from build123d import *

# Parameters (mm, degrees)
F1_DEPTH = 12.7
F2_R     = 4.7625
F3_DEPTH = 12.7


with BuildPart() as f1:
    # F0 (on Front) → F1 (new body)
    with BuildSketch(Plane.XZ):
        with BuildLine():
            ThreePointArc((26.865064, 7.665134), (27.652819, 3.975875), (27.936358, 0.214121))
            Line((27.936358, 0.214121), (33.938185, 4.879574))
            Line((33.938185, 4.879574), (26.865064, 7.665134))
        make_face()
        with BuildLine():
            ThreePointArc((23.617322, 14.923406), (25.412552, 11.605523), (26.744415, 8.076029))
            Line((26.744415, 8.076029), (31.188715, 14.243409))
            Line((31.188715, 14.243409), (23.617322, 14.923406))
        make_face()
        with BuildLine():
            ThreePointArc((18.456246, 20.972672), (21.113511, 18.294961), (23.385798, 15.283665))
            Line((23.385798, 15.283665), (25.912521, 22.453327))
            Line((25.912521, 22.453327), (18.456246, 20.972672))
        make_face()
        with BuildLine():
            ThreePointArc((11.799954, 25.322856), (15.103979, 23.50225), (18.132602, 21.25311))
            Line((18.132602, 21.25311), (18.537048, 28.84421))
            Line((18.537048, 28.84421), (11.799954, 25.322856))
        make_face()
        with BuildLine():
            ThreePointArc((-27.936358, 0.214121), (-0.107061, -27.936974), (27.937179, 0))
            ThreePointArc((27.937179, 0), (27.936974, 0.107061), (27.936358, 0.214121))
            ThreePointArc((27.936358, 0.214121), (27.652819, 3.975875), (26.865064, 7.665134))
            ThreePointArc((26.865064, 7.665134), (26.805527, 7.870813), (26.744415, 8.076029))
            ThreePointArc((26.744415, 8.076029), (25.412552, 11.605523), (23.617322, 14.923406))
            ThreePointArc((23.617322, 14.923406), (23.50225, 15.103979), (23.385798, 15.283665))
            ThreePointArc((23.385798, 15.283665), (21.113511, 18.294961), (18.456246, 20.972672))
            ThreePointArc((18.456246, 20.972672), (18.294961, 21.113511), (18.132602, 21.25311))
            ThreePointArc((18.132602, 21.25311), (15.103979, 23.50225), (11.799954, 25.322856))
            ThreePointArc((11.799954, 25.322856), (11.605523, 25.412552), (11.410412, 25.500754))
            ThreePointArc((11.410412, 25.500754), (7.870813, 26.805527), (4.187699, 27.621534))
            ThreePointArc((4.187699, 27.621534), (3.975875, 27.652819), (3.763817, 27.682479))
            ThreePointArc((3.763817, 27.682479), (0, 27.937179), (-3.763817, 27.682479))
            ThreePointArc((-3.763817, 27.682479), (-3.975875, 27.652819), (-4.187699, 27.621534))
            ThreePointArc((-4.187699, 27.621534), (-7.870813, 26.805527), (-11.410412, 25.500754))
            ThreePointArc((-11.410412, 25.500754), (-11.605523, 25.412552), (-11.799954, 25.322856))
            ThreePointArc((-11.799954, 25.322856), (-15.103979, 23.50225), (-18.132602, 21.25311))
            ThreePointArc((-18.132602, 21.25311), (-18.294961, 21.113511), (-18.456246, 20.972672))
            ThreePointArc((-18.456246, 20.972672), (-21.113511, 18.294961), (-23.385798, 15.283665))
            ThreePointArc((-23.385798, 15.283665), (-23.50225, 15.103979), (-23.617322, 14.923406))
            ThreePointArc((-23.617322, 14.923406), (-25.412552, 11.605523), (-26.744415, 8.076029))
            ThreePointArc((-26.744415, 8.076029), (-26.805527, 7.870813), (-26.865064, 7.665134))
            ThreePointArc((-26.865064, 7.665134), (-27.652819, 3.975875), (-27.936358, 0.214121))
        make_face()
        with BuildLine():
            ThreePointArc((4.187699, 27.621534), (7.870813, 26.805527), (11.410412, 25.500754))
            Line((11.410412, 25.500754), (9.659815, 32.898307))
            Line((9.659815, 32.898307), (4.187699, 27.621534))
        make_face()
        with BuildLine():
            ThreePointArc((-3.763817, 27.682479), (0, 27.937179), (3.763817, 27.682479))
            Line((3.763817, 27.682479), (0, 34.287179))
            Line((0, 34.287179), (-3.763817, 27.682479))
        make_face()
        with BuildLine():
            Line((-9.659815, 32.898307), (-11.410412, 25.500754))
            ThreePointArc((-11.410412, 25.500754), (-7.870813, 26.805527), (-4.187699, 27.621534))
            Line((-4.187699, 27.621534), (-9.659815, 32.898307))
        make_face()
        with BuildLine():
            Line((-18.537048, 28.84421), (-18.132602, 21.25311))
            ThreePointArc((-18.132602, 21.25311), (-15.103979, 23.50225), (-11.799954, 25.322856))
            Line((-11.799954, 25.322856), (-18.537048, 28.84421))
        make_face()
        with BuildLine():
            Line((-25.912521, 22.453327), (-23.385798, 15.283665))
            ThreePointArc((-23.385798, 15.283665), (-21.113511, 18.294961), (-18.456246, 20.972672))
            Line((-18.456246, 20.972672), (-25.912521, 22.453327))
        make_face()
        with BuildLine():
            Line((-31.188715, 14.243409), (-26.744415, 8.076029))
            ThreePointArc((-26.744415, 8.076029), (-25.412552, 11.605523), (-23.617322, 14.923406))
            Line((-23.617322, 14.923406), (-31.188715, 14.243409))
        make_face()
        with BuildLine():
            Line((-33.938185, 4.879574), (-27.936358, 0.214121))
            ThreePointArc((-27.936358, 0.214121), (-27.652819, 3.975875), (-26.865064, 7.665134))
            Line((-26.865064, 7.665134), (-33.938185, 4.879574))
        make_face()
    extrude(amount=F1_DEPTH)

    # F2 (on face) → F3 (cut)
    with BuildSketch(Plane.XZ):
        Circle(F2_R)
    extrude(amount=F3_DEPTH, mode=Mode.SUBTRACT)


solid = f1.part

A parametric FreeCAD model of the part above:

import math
import FreeCAD as App
import Part
import Sketcher
from FreeCAD import Vector
Q = App.Units.Quantity

doc = App.newDocument("Part")
body = doc.addObject("PartDesign::Body", "Body")

sketch1 = body.newObject("Sketcher::SketchObject", "Sketch")
sketch1.AttachmentSupport = (doc.getObject("XZ_Plane"), [""])
sketch1.MapMode = "FlatFace"
sketch1.addGeometry(Part.LineSegment(Vector(27.936358, 0.214121, 0), Vector(33.938185, 4.879574, 0)), False)
sketch1.addGeometry(Part.LineSegment(Vector(33.938185, 4.879574, 0), Vector(26.865064, 7.665134, 0)), False)
sketch1.addGeometry(Part.ArcOfCircle(Part.Circle(Vector(0.008462, 0.002527, 0), Vector(0, 0, 1), 27.928348), math.radians(15.924273), math.radians(16.802831)), False)
sketch1.addGeometry(Part.LineSegment(Vector(26.744415, 8.076029, 0), Vector(31.188715, 14.243409, 0)), False)
sketch1.addGeometry(Part.LineSegment(Vector(31.188715, 14.243409, 0), Vector(23.617322, 14.923406, 0)), False)
sketch1.addGeometry(Part.ArcOfCircle(Part.Circle(Vector(-0.009148, -0.005853, 0), Vector(0, 0, 1), 27.948039), math.radians(32.288259), math.radians(33.166196)), False)
sketch1.addGeometry(Part.LineSegment(Vector(23.385798, 15.283665, 0), Vector(25.912521, 22.453327, 0)), False)
sketch1.addGeometry(Part.LineSegment(Vector(25.912521, 22.453327, 0), Vector(18.456246, 20.972672, 0)), False)
sketch1.addGeometry(Part.ArcOfCircle(Part.Circle(Vector(-0.007487, -0.008724, 0), Vector(0, 0, 1), 27.948675), math.radians(48.652063), math.radians(49.529982)), False)
sketch1.addGeometry(Part.LineSegment(Vector(18.132602, 21.25311, 0), Vector(18.537048, 28.84421, 0)), False)
sketch1.addGeometry(Part.LineSegment(Vector(18.537048, 28.84421, 0), Vector(11.799954, 25.322856, 0)), False)
sketch1.addGeometry(Part.ArcOfCircle(Part.Circle(Vector(0.002465, 0.005416, 0), Vector(0, 0, 1), 27.931228), math.radians(65.015296), math.radians(65.893763)), False)
sketch1.addGeometry(Part.LineSegment(Vector(11.410412, 25.500754, 0), Vector(9.659815, 32.898307, 0)), False)
sketch1.addGeometry(Part.LineSegment(Vector(9.659815, 32.898307, 0), Vector(4.187699, 27.621534, 0)), False)
sketch1.addGeometry(Part.ArcOfCircle(Part.Circle(Vector(0.001558, 0.010822, 0), Vector(0, 0, 1), 27.926245), math.radians(81.378875), math.radians(82.257497)), False)
sketch1.addGeometry(Part.LineSegment(Vector(3.763817, 27.682479, 0), Vector(0, 34.287179, 0)), False)
sketch1.addGeometry(Part.LineSegment(Vector(0, 34.287179, 0), Vector(-3.763817, 27.682479, 0)), False)
sketch1.addGeometry(Part.ArcOfCircle(Part.Circle(Vector(-0.001558, 0.010822, 0), Vector(0, 0, 1), 27.926245), math.radians(97.742503), math.radians(98.621125)), False)
sketch1.addGeometry(Part.LineSegment(Vector(-4.187699, 27.621534, 0), Vector(-9.659815, 32.898307, 0)), False)
sketch1.addGeometry(Part.LineSegment(Vector(-9.659815, 32.898307, 0), Vector(-11.410412, 25.500754, 0)), False)
sketch1.addGeometry(Part.ArcOfCircle(Part.Circle(Vector(-0.002465, 0.005416, 0), Vector(0, 0, 1), 27.931228), math.radians(114.106237), math.radians(114.984704)), False)
sketch1.addGeometry(Part.LineSegment(Vector(-11.799954, 25.322856, 0), Vector(-18.537048, 28.84421, 0)), False)
sketch1.addGeometry(Part.LineSegment(Vector(-18.537048, 28.84421, 0), Vector(-18.132602, 21.25311, 0)), False)
sketch1.addGeometry(Part.ArcOfCircle(Part.Circle(Vector(0.007487, -0.008724, 0), Vector(0, 0, 1), 27.948675), math.radians(130.470018), math.radians(131.347937)), False)
sketch1.addGeometry(Part.LineSegment(Vector(-18.456246, 20.972672, 0), Vector(-25.912521, 22.453327, 0)), False)
sketch1.addGeometry(Part.LineSegment(Vector(-25.912521, 22.453327, 0), Vector(-23.385798, 15.283665, 0)), False)
sketch1.addGeometry(Part.ArcOfCircle(Part.Circle(Vector(0.009148, -0.005853, 0), Vector(0, 0, 1), 27.948039), math.radians(146.833804), math.radians(147.711741)), False)
sketch1.addGeometry(Part.LineSegment(Vector(-23.617322, 14.923406, 0), Vector(-31.188715, 14.243409, 0)), False)
sketch1.addGeometry(Part.LineSegment(Vector(-31.188715, 14.243409, 0), Vector(-26.744415, 8.076029, 0)), False)
sketch1.addGeometry(Part.ArcOfCircle(Part.Circle(Vector(-0.008462, 0.002527, 0), Vector(0, 0, 1), 27.928348), math.radians(163.197169), math.radians(164.075727)), False)
sketch1.addGeometry(Part.LineSegment(Vector(-26.865064, 7.665134, 0), Vector(-33.938185, 4.879574, 0)), False)
sketch1.addGeometry(Part.LineSegment(Vector(-33.938185, 4.879574, 0), Vector(-27.936358, 0.214121, 0)), False)
sketch1.addGeometry(Part.ArcOfCircle(Part.Circle(Vector(0, 0, 0), Vector(0, 0, 1), 27.937179), math.radians(179.560859), math.radians(360.000001)), False)
sketch1.addGeometry(Part.ArcOfCircle(Part.Circle(Vector(0.048764, 0.00013, 0), Vector(0, 0, 1), 27.888415), math.radians(-0.000267), math.radians(0.439641)), False)
sketch1.addConstraint(Sketcher.Constraint("Coincident", 0, 2, 1, 1))
sketch1.addConstraint(Sketcher.Constraint("Coincident", 1, 2, 2, 1))
sketch1.addConstraint(Sketcher.Constraint("Coincident", 2, 2, 3, 1))
sketch1.addConstraint(Sketcher.Constraint("Coincident", 3, 2, 4, 1))
sketch1.addConstraint(Sketcher.Constraint("Coincident", 4, 2, 5, 1))
sketch1.addConstraint(Sketcher.Constraint("Coincident", 5, 2, 6, 1))
sketch1.addConstraint(Sketcher.Constraint("Coincident", 6, 2, 7, 1))
sketch1.addConstraint(Sketcher.Constraint("Coincident", 7, 2, 8, 1))
sketch1.addConstraint(Sketcher.Constraint("Coincident", 8, 2, 9, 1))
sketch1.addConstraint(Sketcher.Constraint("Coincident", 9, 2, 10, 1))
sketch1.addConstraint(Sketcher.Constraint("Coincident", 10, 2, 11, 1))
sketch1.addConstraint(Sketcher.Constraint("Coincident", 11, 2, 12, 1))
sketch1.addConstraint(Sketcher.Constraint("Coincident", 12, 2, 13, 1))
sketch1.addConstraint(Sketcher.Constraint("Coincident", 13, 2, 14, 1))
sketch1.addConstraint(Sketcher.Constraint("Coincident", 14, 2, 15, 1))
sketch1.addConstraint(Sketcher.Constraint("Coincident", 15, 2, 16, 1))
sketch1.addConstraint(Sketcher.Constraint("Coincident", 16, 2, 17, 1))
sketch1.addConstraint(Sketcher.Constraint("Coincident", 17, 2, 18, 1))
sketch1.addConstraint(Sketcher.Constraint("Coincident", 18, 2, 19, 1))
sketch1.addConstraint(Sketcher.Constraint("Coincident", 19, 2, 20, 1))
sketch1.addConstraint(Sketcher.Constraint("Coincident", 20, 2, 21, 1))
sketch1.addConstraint(Sketcher.Constraint("Coincident", 21, 2, 22, 1))
sketch1.addConstraint(Sketcher.Constraint("Coincident", 22, 2, 23, 1))
sketch1.addConstraint(Sketcher.Constraint("Coincident", 23, 2, 24, 1))
sketch1.addConstraint(Sketcher.Constraint("Coincident", 24, 2, 25, 1))
sketch1.addConstraint(Sketcher.Constraint("Coincident", 25, 2, 26, 1))
sketch1.addConstraint(Sketcher.Constraint("Coincident", 26, 2, 27, 1))
sketch1.addConstraint(Sketcher.Constraint("Coincident", 27, 2, 28, 1))
sketch1.addConstraint(Sketcher.Constraint("Coincident", 28, 2, 29, 1))
sketch1.addConstraint(Sketcher.Constraint("Coincident", 29, 2, 30, 1))
sketch1.addConstraint(Sketcher.Constraint("Coincident", 30, 2, 31, 1))
sketch1.addConstraint(Sketcher.Constraint("Coincident", 31, 2, 32, 1))
sketch1.addConstraint(Sketcher.Constraint("Coincident", 32, 2, 33, 1))
sketch1.addConstraint(Sketcher.Constraint("Coincident", 33, 2, 0, 1))
sketch1.addConstraint(Sketcher.Constraint("Coincident", 32, 3, -1, 1))
sketch1.addConstraint(Sketcher.Constraint("PointOnObject", 15, 2, -2))
sketch1.addConstraint(Sketcher.Constraint("PointOnObject", 32, 2, -1))
sketch1.addConstraint(Sketcher.Constraint("Radius", 2, Q("27.928348 mm")))
sketch1.addConstraint(Sketcher.Constraint("Radius", 5, Q("27.948039 mm")))
sketch1.addConstraint(Sketcher.Constraint("Radius", 11, Q("27.931228 mm")))
sketch1.addConstraint(Sketcher.Constraint("Radius", 20, Q("27.931228 mm")))
sketch1.addConstraint(Sketcher.Constraint("Radius", 26, Q("27.948039 mm")))
sketch1.addConstraint(Sketcher.Constraint("Radius", 29, Q("27.928348 mm")))
sketch1.addConstraint(Sketcher.Constraint("Radius", 32, Q("27.937179 mm")))
sketch1.addConstraint(Sketcher.Constraint("Radius", 8, Q("27.948675 mm")))
sketch1.addConstraint(Sketcher.Constraint("Radius", 14, Q("27.926245 mm")))
sketch1.addConstraint(Sketcher.Constraint("Radius", 17, Q("27.926245 mm")))
sketch1.addConstraint(Sketcher.Constraint("Radius", 23, Q("27.948675 mm")))
sketch1.addConstraint(Sketcher.Constraint("Radius", 33, Q("27.888415 mm")))
sketch1.addConstraint(Sketcher.Constraint("DistanceX", -1, 1, 5, 2, Q("23.385798 mm")))
sketch1.addConstraint(Sketcher.Constraint("DistanceX", -1, 1, 13, 2, Q("4.187699 mm")))
sketch1.addConstraint(Sketcher.Constraint("DistanceX", 17, 2, -1, 1, Q("4.187699 mm")))
sketch1.addConstraint(Sketcher.Constraint("DistanceX", 22, 2, -1, 1, Q("18.132602 mm")))
sketch1.addConstraint(Sketcher.Constraint("DistanceX", 25, 2, -1, 1, Q("23.385798 mm")))
sketch1.addConstraint(Sketcher.Constraint("DistanceX", 11, 3, 33, 3, Q("0.046298 mm")))
sketch1.addConstraint(Sketcher.Constraint("DistanceX", 23, 3, 0, 2, Q("33.930698 mm")))
sketch1.addConstraint(Sketcher.Constraint("DistanceY", 23, 3, 0, 2, Q("4.888298 mm")))
sketch1.addConstraint(Sketcher.Constraint("DistanceX", 33, 3, 1, 2, Q("26.8163 mm")))
sketch1.addConstraint(Sketcher.Constraint("DistanceY", 33, 3, 2, 2, Q("8.075899 mm")))
sketch1.addConstraint(Sketcher.Constraint("DistanceY", 2, 3, 2, 2, Q("8.073502 mm")))
sketch1.addConstraint(Sketcher.Constraint("DistanceX", 2, 2, 3, 2, Q("4.4443 mm")))
sketch1.addConstraint(Sketcher.Constraint("DistanceX", 4, 2, 6, 2, Q("2.295199 mm")))
sketch1.addConstraint(Sketcher.Constraint("DistanceY", 3, 2, 8, 2, Q("7.009701 mm")))
sketch1.addConstraint(Sketcher.Constraint("DistanceY", 8, 2, 9, 2, Q("7.5911 mm")))
sketch1.addConstraint(Sketcher.Constraint("DistanceX", 7, 2, 9, 2, Q("0.080802 mm")))
sketch1.addConstraint(Sketcher.Constraint("DistanceY", 10, 2, 11, 2, Q("0.177898 mm")))
sketch1.addConstraint(Sketcher.Constraint("DistanceY", 14, 2, 15, 2, Q("6.6047 mm")))
sketch1.addConstraint(Sketcher.Constraint("DistanceY", 16, 2, 15, 2, Q("6.6047 mm")))
sketch1.addConstraint(Sketcher.Constraint("DistanceX", 18, 2, 16, 2, Q("5.895998 mm")))
sketch1.addConstraint(Sketcher.Constraint("DistanceY", 22, 2, 21, 2, Q("7.5911 mm")))
sketch1.addConstraint(Sketcher.Constraint("DistanceX", 21, 2, 23, 2, Q("0.080802 mm")))
sketch1.addConstraint(Sketcher.Constraint("DistanceX", 24, 2, 26, 2, Q("2.295199 mm")))
sketch1.addConstraint(Sketcher.Constraint("DistanceY", 27, 2, 22, 2, Q("7.009701 mm")))
sketch1.addConstraint(Sketcher.Constraint("DistanceX", 27, 2, 28, 2, Q("4.4443 mm")))
sketch1.addConstraint(Sketcher.Constraint("DistanceY", 28, 2, 24, 2, Q("14.377298 mm")))
sketch1.addConstraint(Sketcher.Constraint("DistanceX", -1, 1, 2, 3, Q("0.008462 mm")))
sketch1.addConstraint(Sketcher.Constraint("DistanceX", 5, 3, -1, 1, Q("0.009148 mm")))
sketch1.addConstraint(Sketcher.Constraint("DistanceX", -1, 1, 26, 3, Q("0.009148 mm")))
sketch1.addConstraint(Sketcher.Constraint("DistanceX", 29, 3, -1, 1, Q("0.008462 mm")))
sketch1.addConstraint(Sketcher.Constraint("DistanceY", -1, 1, 33, 3, Q("0.00013 mm")))
sketch1.addConstraint(Sketcher.Constraint("DistanceY", -1, 1, 3, 2, Q("14.243409 mm")))
sketch1.addConstraint(Sketcher.Constraint("DistanceX", -1, 1, 6, 2, Q("25.912521 mm")))
sketch1.addConstraint(Sketcher.Constraint("DistanceY", -1, 1, 7, 2, Q("20.972672 mm")))
sketch1.addConstraint(Sketcher.Constraint("DistanceY", -1, 1, 14, 2, Q("27.682479 mm")))
sketch1.addConstraint(Sketcher.Constraint("DistanceY", -1, 1, 21, 2, Q("28.84421 mm")))
sketch1.addConstraint(Sketcher.Constraint("DistanceX", 24, 2, -1, 1, Q("25.912521 mm")))
sketch1.addConstraint(Sketcher.Constraint("DistanceY", -1, 1, 28, 2, Q("8.076029 mm")))
sketch1.addConstraint(Sketcher.Constraint("DistanceY", -1, 1, 31, 2, Q("0.214121 mm")))
sketch1.addConstraint(Sketcher.Constraint("DistanceY", -1, 1, 33, 2, Q("0.214121 mm")))
sketch1.addConstraint(Sketcher.Constraint("DistanceY", 5, 3, 2, 3, Q("0.00838 mm")))
sketch1.addConstraint(Sketcher.Constraint("DistanceX", 5, 3, 8, 3, Q("0.001661 mm")))
sketch1.addConstraint(Sketcher.Constraint("DistanceY", 8, 3, 5, 3, Q("0.002871 mm")))
sketch1.addConstraint(Sketcher.Constraint("DistanceY", 2, 3, 11, 3, Q("0.002889 mm")))
sketch1.addConstraint(Sketcher.Constraint("DistanceX", 17, 3, 2, 3, Q("0.010019 mm")))
sketch1.addConstraint(Sketcher.Constraint("DistanceX", 20, 3, 11, 3, Q("0.004931 mm")))
sketch1.addConstraint(Sketcher.Constraint("DistanceY", 2, 3, 20, 3, Q("0.002889 mm")))
sketch1.addConstraint(Sketcher.Constraint("DistanceY", 23, 3, 2, 3, Q("0.011252 mm")))
sketch1.addConstraint(Sketcher.Constraint("DistanceY", 23, 3, 26, 3, Q("0.002871 mm")))
sketch1.addConstraint(Sketcher.Constraint("DistanceY", 29, 3, 20, 3, Q("0.002889 mm")))
sketch1.addConstraint(Sketcher.Constraint("DistanceY", 5, 2, 6, 2, Q("7.169662 mm")))
sketch1.addConstraint(Sketcher.Constraint("DistanceX", 10, 2, 8, 2, Q("6.332648 mm")))
sketch1.addConstraint(Sketcher.Constraint("DistanceX", 12, 2, 10, 2, Q("2.140139 mm")))
sketch1.addConstraint(Sketcher.Constraint("DistanceY", 10, 2, 12, 2, Q("7.575451 mm")))
sketch1.addConstraint(Sketcher.Constraint("DistanceY", 11, 2, 13, 2, Q("2.12078 mm")))
sketch1.addConstraint(Sketcher.Constraint("DistanceX", 14, 2, 13, 2, Q("0.423882 mm")))
sketch1.addConstraint(Sketcher.Constraint("DistanceX", 16, 2, 11, 2, Q("15.174229 mm")))
sketch1.addConstraint(Sketcher.Constraint("DistanceY", 16, 2, 18, 2, Q("5.215828 mm")))
sketch1.addConstraint(Sketcher.Constraint("DistanceY", 19, 2, 17, 2, Q("2.12078 mm")))
sketch1.addConstraint(Sketcher.Constraint("DistanceX", 20, 2, 18, 2, Q("2.140139 mm")))
sketch1.addConstraint(Sketcher.Constraint("DistanceX", 21, 2, 17, 2, Q("14.349349 mm")))
sketch1.addConstraint(Sketcher.Constraint("DistanceX", 29, 2, 28, 2, Q("0.120649 mm")))
sketch1.addConstraint(Sketcher.Constraint("DistanceX", 30, 2, 29, 2, Q("7.073121 mm")))
sketch1.addConstraint(Sketcher.Constraint("DistanceY", 30, 2, 29, 2, Q("2.78556 mm")))
pad1 = body.newObject("PartDesign::Pad", "Pad")
pad1.Profile = sketch1
pad1.Length = Q("0.5 in")

sketch2 = body.newObject("Sketcher::SketchObject", "Sketch001")
sketch2.AttachmentSupport = (doc.getObject("XZ_Plane"), [""])
sketch2.MapMode = "FlatFace"
sketch2.addGeometry(Part.Circle(Vector(0, 0, 0), Vector(0, 0, 1), 4.8), False)
sketch2.addConstraint(Sketcher.Constraint("Coincident", 0, 3, -1, 1))
sketch2.addConstraint(Sketcher.Constraint("Diameter", 0, Q("0.375 in")))
pocket1 = body.newObject("PartDesign::Pocket", "Pocket")
pocket1.Profile = sketch2
pocket1.Length = Q("0.5 in")
pocket1.Reversed = True

doc.recompute()
